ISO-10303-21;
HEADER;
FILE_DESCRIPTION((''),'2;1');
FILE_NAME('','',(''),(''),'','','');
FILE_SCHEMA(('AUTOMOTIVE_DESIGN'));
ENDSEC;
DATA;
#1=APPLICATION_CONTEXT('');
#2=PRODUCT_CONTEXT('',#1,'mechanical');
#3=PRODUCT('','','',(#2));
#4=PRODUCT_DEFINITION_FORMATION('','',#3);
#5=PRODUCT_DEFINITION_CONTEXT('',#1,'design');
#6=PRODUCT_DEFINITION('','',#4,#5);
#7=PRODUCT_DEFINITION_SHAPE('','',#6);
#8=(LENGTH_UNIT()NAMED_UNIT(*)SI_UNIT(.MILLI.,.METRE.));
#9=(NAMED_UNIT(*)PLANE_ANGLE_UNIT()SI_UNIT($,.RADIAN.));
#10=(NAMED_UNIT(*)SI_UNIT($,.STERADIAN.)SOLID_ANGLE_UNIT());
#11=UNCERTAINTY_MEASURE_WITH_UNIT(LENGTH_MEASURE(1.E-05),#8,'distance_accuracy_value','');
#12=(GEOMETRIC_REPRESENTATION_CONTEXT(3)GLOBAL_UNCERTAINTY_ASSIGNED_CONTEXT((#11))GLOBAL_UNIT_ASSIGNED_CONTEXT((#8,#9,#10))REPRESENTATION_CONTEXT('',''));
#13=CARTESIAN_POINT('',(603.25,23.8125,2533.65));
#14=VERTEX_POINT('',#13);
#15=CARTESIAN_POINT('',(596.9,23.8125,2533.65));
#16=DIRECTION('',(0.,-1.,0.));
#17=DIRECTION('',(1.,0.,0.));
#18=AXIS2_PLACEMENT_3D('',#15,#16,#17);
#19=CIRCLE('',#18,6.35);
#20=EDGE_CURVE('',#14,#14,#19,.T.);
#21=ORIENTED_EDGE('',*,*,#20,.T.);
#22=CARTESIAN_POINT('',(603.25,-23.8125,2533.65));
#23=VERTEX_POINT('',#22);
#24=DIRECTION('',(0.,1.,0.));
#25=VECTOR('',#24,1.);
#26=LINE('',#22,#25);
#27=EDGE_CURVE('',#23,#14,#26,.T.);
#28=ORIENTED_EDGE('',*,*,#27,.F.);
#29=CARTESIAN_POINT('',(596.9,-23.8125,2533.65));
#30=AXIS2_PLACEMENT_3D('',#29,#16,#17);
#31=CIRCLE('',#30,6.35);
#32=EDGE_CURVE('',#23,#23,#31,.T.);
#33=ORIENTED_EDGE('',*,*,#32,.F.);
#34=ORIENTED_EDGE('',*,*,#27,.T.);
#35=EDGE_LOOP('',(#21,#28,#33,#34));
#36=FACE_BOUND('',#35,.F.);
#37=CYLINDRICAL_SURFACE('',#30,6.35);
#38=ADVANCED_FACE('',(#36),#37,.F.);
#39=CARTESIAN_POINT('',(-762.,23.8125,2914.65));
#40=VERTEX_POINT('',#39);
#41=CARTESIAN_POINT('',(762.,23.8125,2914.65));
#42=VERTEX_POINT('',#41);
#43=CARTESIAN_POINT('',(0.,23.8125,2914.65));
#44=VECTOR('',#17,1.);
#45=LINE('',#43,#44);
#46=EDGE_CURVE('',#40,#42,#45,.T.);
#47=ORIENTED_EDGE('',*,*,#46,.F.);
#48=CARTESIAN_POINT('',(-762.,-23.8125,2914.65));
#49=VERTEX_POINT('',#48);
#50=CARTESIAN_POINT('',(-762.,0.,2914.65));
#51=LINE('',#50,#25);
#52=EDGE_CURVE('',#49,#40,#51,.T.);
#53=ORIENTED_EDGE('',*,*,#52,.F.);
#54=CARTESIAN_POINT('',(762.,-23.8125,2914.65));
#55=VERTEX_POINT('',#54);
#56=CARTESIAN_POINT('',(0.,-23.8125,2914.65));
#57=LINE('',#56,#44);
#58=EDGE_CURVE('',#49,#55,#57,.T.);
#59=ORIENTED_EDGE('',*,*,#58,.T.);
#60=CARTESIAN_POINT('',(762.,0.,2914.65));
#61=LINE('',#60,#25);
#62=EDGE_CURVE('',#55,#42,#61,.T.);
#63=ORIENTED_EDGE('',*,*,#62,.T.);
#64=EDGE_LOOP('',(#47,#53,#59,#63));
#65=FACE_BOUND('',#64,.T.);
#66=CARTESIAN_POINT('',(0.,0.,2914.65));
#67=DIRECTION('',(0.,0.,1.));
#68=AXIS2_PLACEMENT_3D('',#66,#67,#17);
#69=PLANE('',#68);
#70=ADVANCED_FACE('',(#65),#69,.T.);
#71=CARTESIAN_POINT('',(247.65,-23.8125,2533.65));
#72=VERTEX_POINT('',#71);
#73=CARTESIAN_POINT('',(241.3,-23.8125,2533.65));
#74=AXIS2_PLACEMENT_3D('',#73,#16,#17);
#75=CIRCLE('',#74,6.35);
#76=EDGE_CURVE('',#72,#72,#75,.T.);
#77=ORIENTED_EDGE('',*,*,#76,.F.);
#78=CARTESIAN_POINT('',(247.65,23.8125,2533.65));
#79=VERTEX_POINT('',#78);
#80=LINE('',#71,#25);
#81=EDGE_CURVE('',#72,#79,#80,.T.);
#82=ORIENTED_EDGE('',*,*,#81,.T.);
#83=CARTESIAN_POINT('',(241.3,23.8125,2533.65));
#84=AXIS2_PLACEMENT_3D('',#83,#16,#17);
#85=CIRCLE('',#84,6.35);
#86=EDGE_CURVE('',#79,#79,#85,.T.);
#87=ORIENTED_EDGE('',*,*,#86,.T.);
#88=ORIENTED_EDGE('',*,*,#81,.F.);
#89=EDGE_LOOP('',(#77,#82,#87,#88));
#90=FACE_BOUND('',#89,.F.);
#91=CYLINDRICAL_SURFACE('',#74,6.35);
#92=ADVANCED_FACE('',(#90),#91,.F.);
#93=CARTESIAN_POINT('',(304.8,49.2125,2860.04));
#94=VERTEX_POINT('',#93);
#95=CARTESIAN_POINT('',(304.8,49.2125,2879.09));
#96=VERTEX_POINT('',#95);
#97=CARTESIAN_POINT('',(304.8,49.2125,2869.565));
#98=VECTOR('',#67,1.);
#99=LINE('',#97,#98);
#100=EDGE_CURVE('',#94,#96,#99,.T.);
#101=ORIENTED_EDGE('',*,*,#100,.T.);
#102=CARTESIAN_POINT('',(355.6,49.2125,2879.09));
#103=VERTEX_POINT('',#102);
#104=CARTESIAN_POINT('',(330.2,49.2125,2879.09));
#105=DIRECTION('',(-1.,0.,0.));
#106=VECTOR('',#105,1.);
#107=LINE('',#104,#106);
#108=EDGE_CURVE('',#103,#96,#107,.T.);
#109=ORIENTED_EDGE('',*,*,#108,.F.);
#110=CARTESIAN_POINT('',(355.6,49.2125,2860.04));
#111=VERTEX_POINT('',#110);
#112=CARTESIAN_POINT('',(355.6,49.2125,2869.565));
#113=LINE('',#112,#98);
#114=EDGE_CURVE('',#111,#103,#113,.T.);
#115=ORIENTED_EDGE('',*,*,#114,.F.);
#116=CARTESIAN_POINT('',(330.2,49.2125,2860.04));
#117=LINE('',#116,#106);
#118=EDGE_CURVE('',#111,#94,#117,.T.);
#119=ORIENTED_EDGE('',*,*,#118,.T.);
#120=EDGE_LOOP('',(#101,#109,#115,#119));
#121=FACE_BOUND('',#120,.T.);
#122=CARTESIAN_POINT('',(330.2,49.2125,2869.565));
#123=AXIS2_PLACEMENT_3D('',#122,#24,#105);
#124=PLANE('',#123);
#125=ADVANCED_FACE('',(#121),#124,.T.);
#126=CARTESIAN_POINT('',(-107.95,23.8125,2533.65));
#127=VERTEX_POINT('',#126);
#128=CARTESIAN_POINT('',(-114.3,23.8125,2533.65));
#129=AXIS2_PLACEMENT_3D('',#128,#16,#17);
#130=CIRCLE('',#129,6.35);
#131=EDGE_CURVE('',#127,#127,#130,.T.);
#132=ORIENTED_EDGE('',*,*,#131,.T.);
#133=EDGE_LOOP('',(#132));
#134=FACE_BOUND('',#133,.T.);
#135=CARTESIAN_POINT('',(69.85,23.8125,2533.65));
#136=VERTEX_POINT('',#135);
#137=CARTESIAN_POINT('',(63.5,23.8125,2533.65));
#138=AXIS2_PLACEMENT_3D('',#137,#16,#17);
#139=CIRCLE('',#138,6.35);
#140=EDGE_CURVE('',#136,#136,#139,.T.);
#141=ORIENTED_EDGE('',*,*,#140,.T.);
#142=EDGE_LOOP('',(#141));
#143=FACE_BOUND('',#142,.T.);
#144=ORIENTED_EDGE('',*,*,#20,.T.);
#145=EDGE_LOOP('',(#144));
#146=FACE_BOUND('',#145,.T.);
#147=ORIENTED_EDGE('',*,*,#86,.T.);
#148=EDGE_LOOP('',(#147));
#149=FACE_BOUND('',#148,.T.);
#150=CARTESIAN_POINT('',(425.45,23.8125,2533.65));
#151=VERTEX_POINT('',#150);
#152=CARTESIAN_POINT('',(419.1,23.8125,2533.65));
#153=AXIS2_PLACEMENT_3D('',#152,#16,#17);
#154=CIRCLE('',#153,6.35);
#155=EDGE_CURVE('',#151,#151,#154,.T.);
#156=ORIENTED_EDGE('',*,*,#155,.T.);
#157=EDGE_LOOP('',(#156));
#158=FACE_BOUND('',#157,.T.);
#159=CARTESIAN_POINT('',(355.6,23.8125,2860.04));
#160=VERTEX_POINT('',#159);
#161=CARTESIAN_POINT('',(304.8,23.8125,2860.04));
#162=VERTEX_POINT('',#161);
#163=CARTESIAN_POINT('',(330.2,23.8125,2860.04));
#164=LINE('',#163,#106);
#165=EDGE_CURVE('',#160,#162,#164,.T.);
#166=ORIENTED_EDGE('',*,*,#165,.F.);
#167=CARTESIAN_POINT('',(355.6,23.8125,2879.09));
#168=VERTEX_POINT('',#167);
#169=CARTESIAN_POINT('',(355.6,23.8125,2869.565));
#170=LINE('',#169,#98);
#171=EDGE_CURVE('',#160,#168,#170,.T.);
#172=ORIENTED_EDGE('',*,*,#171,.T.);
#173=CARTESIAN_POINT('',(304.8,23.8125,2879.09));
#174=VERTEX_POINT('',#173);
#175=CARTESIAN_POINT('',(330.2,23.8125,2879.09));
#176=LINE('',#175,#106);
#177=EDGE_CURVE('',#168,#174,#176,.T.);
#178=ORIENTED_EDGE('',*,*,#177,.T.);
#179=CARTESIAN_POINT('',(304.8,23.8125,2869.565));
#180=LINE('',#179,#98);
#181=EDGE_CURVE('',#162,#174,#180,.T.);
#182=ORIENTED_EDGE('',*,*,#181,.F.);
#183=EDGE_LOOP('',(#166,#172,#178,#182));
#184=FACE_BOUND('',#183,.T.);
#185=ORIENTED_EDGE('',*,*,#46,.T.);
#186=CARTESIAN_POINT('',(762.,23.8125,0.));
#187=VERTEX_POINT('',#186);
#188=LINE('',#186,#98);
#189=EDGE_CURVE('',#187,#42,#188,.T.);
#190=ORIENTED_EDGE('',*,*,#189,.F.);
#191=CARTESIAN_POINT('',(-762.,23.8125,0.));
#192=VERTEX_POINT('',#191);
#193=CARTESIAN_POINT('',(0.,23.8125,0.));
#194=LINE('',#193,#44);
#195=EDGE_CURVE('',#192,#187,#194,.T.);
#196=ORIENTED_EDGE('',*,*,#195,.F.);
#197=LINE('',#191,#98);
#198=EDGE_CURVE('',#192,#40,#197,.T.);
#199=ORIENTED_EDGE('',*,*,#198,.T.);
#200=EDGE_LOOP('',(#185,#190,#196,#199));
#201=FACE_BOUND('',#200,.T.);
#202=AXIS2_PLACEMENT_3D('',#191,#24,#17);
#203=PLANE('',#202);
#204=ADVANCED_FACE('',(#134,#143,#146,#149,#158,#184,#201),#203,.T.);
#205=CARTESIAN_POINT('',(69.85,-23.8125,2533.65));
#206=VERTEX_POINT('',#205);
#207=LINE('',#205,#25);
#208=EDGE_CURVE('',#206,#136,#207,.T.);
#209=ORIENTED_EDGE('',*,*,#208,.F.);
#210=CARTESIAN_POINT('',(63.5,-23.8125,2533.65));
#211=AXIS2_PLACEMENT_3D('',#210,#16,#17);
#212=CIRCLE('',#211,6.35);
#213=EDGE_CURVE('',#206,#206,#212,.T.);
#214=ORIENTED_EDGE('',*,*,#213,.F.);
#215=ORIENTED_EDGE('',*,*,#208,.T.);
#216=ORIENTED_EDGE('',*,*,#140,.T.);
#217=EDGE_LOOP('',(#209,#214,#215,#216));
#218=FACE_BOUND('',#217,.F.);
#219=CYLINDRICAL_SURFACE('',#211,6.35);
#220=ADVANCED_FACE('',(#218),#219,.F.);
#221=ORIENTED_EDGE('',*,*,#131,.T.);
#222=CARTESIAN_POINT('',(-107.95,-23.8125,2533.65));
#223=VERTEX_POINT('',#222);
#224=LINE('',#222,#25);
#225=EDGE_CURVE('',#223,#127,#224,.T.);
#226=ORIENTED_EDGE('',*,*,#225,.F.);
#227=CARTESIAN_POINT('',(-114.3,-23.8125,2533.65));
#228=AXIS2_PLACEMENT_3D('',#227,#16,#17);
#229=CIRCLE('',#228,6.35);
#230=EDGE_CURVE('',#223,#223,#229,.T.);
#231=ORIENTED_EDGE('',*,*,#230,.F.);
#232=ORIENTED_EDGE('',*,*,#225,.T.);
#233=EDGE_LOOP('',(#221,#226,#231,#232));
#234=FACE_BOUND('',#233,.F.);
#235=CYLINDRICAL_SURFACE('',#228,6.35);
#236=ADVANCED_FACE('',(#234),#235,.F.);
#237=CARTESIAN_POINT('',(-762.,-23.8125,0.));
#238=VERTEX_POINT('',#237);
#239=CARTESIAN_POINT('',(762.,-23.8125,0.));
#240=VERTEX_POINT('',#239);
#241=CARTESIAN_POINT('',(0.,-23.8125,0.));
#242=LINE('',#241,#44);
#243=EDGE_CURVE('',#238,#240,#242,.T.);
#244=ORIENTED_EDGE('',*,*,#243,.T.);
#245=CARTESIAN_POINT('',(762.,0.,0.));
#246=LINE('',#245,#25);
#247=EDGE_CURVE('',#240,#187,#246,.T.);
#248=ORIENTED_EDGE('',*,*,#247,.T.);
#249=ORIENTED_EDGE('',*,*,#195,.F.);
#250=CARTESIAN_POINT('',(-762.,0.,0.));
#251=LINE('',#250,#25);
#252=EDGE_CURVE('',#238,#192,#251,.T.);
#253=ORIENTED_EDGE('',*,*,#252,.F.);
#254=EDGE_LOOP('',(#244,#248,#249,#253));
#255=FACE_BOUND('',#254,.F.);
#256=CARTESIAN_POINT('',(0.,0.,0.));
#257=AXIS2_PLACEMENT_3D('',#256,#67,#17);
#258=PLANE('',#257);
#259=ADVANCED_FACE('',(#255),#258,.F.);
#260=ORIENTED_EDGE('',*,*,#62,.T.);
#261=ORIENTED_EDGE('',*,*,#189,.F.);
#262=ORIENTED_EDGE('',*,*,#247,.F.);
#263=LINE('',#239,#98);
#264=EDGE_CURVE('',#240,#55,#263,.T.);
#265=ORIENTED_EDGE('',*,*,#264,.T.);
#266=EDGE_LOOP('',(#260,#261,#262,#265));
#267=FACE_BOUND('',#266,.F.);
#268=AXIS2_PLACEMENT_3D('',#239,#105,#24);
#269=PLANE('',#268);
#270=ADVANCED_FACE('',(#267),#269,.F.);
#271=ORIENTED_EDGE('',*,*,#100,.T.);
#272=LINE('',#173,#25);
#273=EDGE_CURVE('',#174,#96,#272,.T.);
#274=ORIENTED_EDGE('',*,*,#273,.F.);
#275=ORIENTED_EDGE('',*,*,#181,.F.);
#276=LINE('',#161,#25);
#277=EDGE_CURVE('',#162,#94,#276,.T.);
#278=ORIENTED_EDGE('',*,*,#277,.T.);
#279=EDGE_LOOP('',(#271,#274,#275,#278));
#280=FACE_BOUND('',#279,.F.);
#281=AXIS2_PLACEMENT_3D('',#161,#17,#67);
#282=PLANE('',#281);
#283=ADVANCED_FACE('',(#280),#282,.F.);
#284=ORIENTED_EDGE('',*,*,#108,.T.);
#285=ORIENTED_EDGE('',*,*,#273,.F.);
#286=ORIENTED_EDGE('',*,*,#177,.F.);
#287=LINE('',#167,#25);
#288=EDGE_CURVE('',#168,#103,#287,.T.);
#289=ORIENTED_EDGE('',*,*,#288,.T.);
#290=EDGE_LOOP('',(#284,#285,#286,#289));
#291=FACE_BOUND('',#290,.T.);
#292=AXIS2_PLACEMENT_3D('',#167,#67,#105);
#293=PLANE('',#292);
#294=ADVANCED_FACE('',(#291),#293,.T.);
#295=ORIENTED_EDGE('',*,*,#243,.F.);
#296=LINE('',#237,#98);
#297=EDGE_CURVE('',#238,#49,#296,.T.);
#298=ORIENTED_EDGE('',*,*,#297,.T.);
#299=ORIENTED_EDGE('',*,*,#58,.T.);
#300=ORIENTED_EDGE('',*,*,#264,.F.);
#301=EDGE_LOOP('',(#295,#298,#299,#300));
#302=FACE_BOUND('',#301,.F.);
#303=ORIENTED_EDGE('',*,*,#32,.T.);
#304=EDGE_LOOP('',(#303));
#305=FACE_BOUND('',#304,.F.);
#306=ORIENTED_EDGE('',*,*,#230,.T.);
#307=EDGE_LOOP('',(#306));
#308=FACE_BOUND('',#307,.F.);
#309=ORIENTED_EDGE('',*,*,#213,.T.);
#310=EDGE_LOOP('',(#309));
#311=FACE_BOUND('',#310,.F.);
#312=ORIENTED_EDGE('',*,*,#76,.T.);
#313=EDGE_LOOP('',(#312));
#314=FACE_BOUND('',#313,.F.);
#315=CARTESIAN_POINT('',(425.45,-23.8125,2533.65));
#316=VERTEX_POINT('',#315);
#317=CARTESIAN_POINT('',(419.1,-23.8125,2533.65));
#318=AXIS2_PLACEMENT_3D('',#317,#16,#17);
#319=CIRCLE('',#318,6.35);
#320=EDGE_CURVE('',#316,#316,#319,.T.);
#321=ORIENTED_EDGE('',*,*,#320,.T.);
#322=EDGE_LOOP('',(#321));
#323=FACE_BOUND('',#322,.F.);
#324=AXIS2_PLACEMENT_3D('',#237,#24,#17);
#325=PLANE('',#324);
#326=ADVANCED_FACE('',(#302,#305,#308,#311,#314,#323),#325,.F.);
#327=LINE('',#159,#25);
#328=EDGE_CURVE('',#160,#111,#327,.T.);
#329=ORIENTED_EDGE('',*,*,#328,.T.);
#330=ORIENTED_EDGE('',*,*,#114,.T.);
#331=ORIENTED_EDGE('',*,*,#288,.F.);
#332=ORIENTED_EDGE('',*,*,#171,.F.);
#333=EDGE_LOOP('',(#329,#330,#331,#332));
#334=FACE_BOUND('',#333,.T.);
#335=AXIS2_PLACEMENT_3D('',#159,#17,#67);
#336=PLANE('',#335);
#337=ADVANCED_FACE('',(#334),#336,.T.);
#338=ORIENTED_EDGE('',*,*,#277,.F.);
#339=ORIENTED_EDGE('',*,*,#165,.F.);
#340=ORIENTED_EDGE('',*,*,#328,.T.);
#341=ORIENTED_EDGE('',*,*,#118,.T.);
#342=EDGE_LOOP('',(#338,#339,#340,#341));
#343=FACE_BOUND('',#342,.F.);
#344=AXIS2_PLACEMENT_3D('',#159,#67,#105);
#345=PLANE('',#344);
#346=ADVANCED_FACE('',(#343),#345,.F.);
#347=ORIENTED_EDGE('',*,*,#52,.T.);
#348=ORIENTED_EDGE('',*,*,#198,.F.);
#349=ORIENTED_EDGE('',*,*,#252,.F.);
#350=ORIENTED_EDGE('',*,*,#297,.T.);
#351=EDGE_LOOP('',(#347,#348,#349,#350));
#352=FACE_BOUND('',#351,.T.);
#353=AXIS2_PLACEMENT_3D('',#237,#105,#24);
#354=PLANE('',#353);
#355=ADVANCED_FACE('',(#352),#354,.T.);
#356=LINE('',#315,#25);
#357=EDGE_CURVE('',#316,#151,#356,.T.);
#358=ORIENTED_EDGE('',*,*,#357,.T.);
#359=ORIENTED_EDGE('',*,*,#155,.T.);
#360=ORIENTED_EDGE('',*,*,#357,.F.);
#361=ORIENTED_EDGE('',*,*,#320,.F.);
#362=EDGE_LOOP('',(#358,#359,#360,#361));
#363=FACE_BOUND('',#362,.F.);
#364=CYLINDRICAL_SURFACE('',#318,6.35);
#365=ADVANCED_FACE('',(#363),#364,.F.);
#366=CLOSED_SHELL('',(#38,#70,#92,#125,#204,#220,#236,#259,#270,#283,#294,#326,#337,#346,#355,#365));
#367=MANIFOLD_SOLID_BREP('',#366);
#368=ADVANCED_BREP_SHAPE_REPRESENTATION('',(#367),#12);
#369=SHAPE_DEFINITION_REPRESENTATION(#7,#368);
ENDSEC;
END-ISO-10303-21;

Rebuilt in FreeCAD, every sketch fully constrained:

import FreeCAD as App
import Part
import Sketcher

V = App.Vector
Q = App.Units.Quantity

doc = App.newDocument("Part")
params = doc.addObject("Spreadsheet::Sheet", "Params")
for row, (alias, value) in enumerate([
    ("sketch1_width", "60 in"),
    ("sketch1_height", "1.875 in"),
    ("pad1_length", "114.75 in"),
    ("sketch2_diameter", "0.5 in"),
    ("sketch3_width", "2 in"),
    ("sketch3_height", "0.75 in"),
    ("pad2_length", "1 in"),
], start=1):
    params.set(f"A{row}", alias)
    params.set(f"B{row}", "=" + value)
    params.setAlias(f"B{row}", alias)

body = doc.addObject("PartDesign::Body", "Body")

sketch1 = body.newObject("Sketcher::SketchObject", "Sketch")
sketch1.AttachmentSupport = (doc.getObject("XY_Plane"), [""])
sketch1.MapMode = "FlatFace"
sketch1.addGeometry([
    Part.LineSegment(V(-762, 24, 0), V(-762, -24, 0)),
    Part.LineSegment(V(-762, -24, 0), V(762, -24, 0)),
    Part.LineSegment(V(762, -24, 0), V(762, 24, 0)),
    Part.LineSegment(V(762, 24, 0), V(-762, 24, 0)),
], False)
sketch1.addConstraint([
    Sketcher.Constraint("Coincident", 0, 2, 1, 1),
    Sketcher.Constraint("Coincident", 1, 2, 2, 1),
    Sketcher.Constraint("Coincident", 2, 2, 3, 1),
    Sketcher.Constraint("Coincident", 3, 2, 0, 1),
    Sketcher.Constraint("Vertical", 0),
    Sketcher.Constraint("Horizontal", 1),
    Sketcher.Constraint("Vertical", 2),
    Sketcher.Constraint("Horizontal", 3),
    Sketcher.Constraint("Symmetric", 0, 2, 2, 2, -1, 1),
    Sketcher.Constraint("DistanceX", 1, 1, 1, 2, Q("60 in")),
    Sketcher.Constraint("DistanceY", 0, 2, 0, 1, Q("1.875 in")),
])
sketch1.setExpression("Constraints[9]", "Params.sketch1_width")
sketch1.setExpression("Constraints[10]", "Params.sketch1_height")
pad1 = body.newObject("PartDesign::Pad", "Pad")
pad1.Profile = sketch1
pad1.setExpression("Length", "Params.pad1_length")

sketch2 = body.newObject("Sketcher::SketchObject", "Sketch001")
sketch2.AttachmentSupport = (doc.getObject("XZ_Plane"), [""])
sketch2.MapMode = "FlatFace"
sketch2.AttachmentOffset = App.Placement(V(0, 0, 0.9375 * 25.4), App.Rotation())
sketch2.addGeometry([
    Part.Circle(V(-114, 2534, 0), V(0, 0, 1), 6),
    Part.Circle(V(64, 2534, 0), V(0, 0, 1), 6),
    Part.Circle(V(241, 2534, 0), V(0, 0, 1), 6),
    Part.Circle(V(419, 2534, 0), V(0, 0, 1), 6),
    Part.Circle(V(597, 2534, 0), V(0, 0, 1), 6),
], False)
sketch2.addConstraint([
    Sketcher.Constraint("Equal", 0, 1),
    Sketcher.Constraint("Equal", 1, 2),
    Sketcher.Constraint("Equal", 2, 3),
    Sketcher.Constraint("Equal", 3, 4),
    Sketcher.Constraint("Horizontal", 0, 3, 1, 3),
    Sketcher.Constraint("Horizontal", 1, 3, 2, 3),
    Sketcher.Constraint("Horizontal", 2, 3, 3, 3),
    Sketcher.Constraint("Horizontal", 3, 3, 4, 3),
    Sketcher.Constraint("Diameter", 0, Q("0.5 in")),
    Sketcher.Constraint("DistanceX", 0, 3, 1, 3, Q("7 in")),
    Sketcher.Constraint("DistanceX", 1, 3, 2, 3, Q("7 in")),
    Sketcher.Constraint("DistanceX", 2, 3, 3, 3, Q("7 in")),
    Sketcher.Constraint("DistanceX", 3, 3, 4, 3, Q("7 in")),
    Sketcher.Constraint("DistanceX", 0, 3, -1, 1, Q("4.5 in")),
    Sketcher.Constraint("DistanceY", -1, 1, 0, 3, Q("99.75 in")),
])
sketch2.setExpression("Constraints[8]", "Params.sketch2_diameter")
pocket1 = body.newObject("PartDesign::Pocket", "Pocket")
pocket1.Profile = sketch2
pocket1.Type = "ThroughAll"

sketch3 = body.newObject("Sketcher::SketchObject", "Sketch002")
sketch3.AttachmentSupport = (doc.getObject("XZ_Plane"), [""])
sketch3.MapMode = "FlatFace"
sketch3.AttachmentOffset = App.Placement(V(0, 0, -0.9375 * 25.4), App.Rotation())
sketch3.addGeometry([
    Part.LineSegment(V(356, 2879, 0), V(356, 2860, 0)),
    Part.LineSegment(V(356, 2860, 0), V(305, 2860, 0)),
    Part.LineSegment(V(305, 2860, 0), V(305, 2879, 0)),
    Part.LineSegment(V(305, 2879, 0), V(356, 2879, 0)),
], False)
sketch3.addConstraint([
    Sketcher.Constraint("Coincident", 0, 2, 1, 1),
    Sketcher.Constraint("Coincident", 1, 2, 2, 1),
    Sketcher.Constraint("Coincident", 2, 2, 3, 1),
    Sketcher.Constraint("Coincident", 3, 2, 0, 1),
    Sketcher.Constraint("Vertical", 0),
    Sketcher.Constraint("Horizontal", 1),
    Sketcher.Constraint("Vertical", 2),
    Sketcher.Constraint("Horizontal", 3),
    Sketcher.Constraint("DistanceX", 1, 2, 1, 1, Q("2 in")),
    Sketcher.Constraint("DistanceX", -1, 1, 0, 2, Q("14 in")),
    Sketcher.Constraint("DistanceY", 0, 2, 0, 1, Q("0.75 in")),
    Sketcher.Constraint("DistanceY", -1, 1, 0, 2, Q("112.6 in")),
])
sketch3.setExpression("Constraints[8]", "Params.sketch3_width")
sketch3.setExpression("Constraints[10]", "Params.sketch3_height")
pad2 = body.newObject("PartDesign::Pad", "Pad001")
pad2.Profile = sketch3
pad2.setExpression("Length", "Params.pad2_length")
pad2.Reversed = True

doc.recompute()
